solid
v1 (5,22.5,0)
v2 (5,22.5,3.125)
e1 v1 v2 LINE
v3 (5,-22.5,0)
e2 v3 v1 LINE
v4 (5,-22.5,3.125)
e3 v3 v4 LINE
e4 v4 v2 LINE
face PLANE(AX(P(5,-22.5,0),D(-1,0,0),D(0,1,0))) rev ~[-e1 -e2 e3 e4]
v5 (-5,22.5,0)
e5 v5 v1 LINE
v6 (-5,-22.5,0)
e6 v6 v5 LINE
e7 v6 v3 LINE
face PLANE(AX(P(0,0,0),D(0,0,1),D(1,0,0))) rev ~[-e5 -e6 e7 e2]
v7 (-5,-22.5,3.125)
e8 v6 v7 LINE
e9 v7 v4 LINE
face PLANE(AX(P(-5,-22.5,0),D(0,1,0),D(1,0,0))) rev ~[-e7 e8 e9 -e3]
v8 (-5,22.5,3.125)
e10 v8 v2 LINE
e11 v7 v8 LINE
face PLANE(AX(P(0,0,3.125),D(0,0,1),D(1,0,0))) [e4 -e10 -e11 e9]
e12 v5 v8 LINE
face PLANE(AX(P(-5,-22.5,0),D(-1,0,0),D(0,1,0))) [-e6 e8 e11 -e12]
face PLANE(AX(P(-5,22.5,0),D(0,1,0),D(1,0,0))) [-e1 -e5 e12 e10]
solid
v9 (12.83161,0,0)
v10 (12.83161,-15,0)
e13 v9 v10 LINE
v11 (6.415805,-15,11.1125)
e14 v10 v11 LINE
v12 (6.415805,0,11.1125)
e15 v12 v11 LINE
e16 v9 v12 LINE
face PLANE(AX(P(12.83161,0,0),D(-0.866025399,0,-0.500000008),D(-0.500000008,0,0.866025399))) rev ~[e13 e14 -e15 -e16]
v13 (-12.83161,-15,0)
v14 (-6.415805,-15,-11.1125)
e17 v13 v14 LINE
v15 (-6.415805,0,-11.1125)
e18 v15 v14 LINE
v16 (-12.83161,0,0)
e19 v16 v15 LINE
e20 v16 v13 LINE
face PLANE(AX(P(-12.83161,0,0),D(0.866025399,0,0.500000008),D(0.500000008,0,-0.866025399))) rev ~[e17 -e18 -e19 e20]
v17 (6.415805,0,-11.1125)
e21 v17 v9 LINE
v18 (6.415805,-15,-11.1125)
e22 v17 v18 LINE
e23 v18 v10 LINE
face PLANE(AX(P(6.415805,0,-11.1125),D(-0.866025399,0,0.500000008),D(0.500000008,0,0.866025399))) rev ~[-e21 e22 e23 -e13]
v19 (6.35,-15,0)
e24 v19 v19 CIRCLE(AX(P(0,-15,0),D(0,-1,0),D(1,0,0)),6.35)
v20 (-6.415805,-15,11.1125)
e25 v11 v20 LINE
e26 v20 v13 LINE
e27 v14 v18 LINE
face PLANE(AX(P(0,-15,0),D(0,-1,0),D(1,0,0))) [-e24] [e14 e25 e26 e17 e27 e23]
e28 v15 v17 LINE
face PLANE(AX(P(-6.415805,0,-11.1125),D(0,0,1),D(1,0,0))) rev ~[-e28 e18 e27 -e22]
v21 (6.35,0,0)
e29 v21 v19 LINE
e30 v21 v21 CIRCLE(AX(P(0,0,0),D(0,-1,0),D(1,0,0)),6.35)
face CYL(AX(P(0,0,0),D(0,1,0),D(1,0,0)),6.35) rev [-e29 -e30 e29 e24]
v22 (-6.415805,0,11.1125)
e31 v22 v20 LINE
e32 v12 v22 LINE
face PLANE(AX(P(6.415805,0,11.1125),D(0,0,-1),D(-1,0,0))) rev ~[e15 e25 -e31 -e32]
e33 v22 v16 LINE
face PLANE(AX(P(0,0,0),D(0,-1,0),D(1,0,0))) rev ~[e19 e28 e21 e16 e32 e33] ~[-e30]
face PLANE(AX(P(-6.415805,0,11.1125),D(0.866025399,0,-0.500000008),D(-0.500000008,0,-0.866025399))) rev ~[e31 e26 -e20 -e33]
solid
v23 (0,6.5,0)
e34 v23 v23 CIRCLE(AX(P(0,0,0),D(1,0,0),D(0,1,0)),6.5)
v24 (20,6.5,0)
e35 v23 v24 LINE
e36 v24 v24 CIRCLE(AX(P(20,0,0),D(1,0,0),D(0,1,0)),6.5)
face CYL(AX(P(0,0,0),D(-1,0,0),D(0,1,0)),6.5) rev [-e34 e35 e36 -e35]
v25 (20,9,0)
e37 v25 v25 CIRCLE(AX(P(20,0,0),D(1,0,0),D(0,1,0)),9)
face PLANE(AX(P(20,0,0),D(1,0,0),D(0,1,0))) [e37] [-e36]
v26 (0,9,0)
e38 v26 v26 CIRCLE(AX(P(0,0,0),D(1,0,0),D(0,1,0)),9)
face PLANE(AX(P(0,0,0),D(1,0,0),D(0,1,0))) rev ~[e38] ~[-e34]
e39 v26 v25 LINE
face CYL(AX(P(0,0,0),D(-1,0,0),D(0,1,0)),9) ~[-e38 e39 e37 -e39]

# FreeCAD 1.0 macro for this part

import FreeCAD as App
import Part
import Sketcher
Q = App.Units.Quantity


def add_polygon(sketch, points):
    """Adds a closed chain of lines whose ends are joined by coincident constraints."""
    first, n = sketch.GeometryCount, len(points)
    for a, b in zip(points, points[1:] + points[:1]):
        sketch.addGeometry(Part.LineSegment(App.Vector(*a, 0), App.Vector(*b, 0)), False)
    for i in range(n):
        sketch.addConstraint(Sketcher.Constraint("Coincident", first + i, 2, first + (i + 1) % n, 1))

doc = App.newDocument("Part")
body = doc.addObject("PartDesign::Body", "Body")

sketch1 = doc.addObject("Sketcher::SketchObject", "Sketch")
body.addObject(sketch1)
sketch1.AttachmentSupport = (doc.XZ_Plane, [""])
sketch1.MapMode = "FlatFace"
add_polygon(sketch1, [(6, 11), (-6, 11), (-13, 0), (-6, -11), (6, -11), (13, 0)])
sketch1.addGeometry(Part.Circle(App.Vector(0, 0, 0), App.Vector(0, 0, 1), 6), False)
sketch1.addConstraint(Sketcher.Constraint("Horizontal", 0))
sketch1.addConstraint(Sketcher.Constraint("Horizontal", 3))
sketch1.addConstraint(Sketcher.Constraint("Coincident", 6, 3, -1, 1))
sketch1.addConstraint(Sketcher.Constraint("Symmetric", 0, 2, 3, 2, -1, 1))
sketch1.addConstraint(Sketcher.Constraint("Symmetric", 1, 2, 4, 2, -1, 1))
sketch1.addConstraint(Sketcher.Constraint("PointOnObject", 1, 2, -1))
sketch1.addConstraint(Sketcher.Constraint("Parallel", 2, 5))
sketch1.addConstraint(Sketcher.Constraint("Vertical", 0, 2, 2, 2))
sketch1.addConstraint(Sketcher.Constraint("Diameter", 6, 12.7))
sketch1.addConstraint(Sketcher.Constraint("Angle", 1, Q("-120.000001 deg")))
sketch1.addConstraint(Sketcher.Constraint("DistanceY", 2, 2, 0, 2, 22.225))
sketch1.addConstraint(Sketcher.Constraint("DistanceX", 0, 2, 0, 1, 12.83161))
pad1 = doc.addObject("PartDesign::Pad", "Pad")
body.addObject(pad1)
pad1.Profile = sketch1
pad1.Length = 15
body2 = doc.addObject("PartDesign::Body", "Body001")

sketch2 = doc.addObject("Sketcher::SketchObject", "Sketch001")
body2.addObject(sketch2)
sketch2.AttachmentSupport = (doc.getObject("YZ_Plane001"), [""])
sketch2.MapMode = "FlatFace"
sketch2.addGeometry(Part.Circle(App.Vector(0, 0, 0), App.Vector(0, 0, 1), 9), False)
sketch2.addGeometry(Part.Circle(App.Vector(0, 0, 0), App.Vector(0, 0, 1), 6), False)
sketch2.addConstraint(Sketcher.Constraint("Coincident", 0, 3, -1, 1))
sketch2.addConstraint(Sketcher.Constraint("Coincident", 1, 3, -1, 1))
sketch2.addConstraint(Sketcher.Constraint("Diameter", 0, 18.0))
sketch2.addConstraint(Sketcher.Constraint("Diameter", 1, 13.0))
pad2 = doc.addObject("PartDesign::Pad", "Pad001")
body2.addObject(pad2)
pad2.Profile = sketch2
pad2.Length = 20
body3 = doc.addObject("PartDesign::Body", "Body002")

sketch3 = doc.addObject("Sketcher::SketchObject", "Sketch002")
body3.addObject(sketch3)
sketch3.AttachmentSupport = (doc.getObject("XY_Plane002"), [""])
sketch3.MapMode = "FlatFace"
add_polygon(sketch3, [(-5, 22), (-5, -22), (5, -22), (5, 22)])
sketch3.addConstraint(Sketcher.Constraint("Vertical", 0))
sketch3.addConstraint(Sketcher.Constraint("Horizontal", 1))
sketch3.addConstraint(Sketcher.Constraint("Vertical", 2))
sketch3.addConstraint(Sketcher.Constraint("Horizontal", 3))
sketch3.addConstraint(Sketcher.Constraint("Symmetric", 0, 2, 2, 2, -1, 1))
sketch3.addConstraint(Sketcher.Constraint("DistanceX", 1, 1, 1, 2, 10.0))
sketch3.addConstraint(Sketcher.Constraint("DistanceY", 0, 2, 0, 1, 45.0))
pad3 = doc.addObject("PartDesign::Pad", "Pad002")
body3.addObject(pad3)
pad3.Profile = sketch3
pad3.Length = 3.125

doc.recompute()
